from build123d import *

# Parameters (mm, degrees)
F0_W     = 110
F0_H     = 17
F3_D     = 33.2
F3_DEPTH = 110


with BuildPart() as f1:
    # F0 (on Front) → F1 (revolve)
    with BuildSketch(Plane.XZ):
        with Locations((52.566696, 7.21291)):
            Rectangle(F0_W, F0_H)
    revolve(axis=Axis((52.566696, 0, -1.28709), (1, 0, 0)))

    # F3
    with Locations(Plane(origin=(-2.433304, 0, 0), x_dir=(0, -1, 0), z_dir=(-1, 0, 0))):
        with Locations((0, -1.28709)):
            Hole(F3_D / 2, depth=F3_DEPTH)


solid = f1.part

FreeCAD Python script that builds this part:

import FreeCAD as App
import Part
import Sketcher
from FreeCAD import Vector
Q = App.Units.Quantity

doc = App.newDocument("Part")
body = doc.addObject("PartDesign::Body", "Body")

# Sketch on XZ plane
sketch1 = body.newObject("Sketcher::SketchObject", "Sketch")
sketch1.AttachmentSupport = (doc.getObject("XZ_Plane"), [""])
sketch1.MapMode = "FlatFace"
sketch1.addGeometry([
    Part.LineSegment(Vector(-2, 16, 0), Vector(-2, -1, 0)),
    Part.LineSegment(Vector(-2, -1, 0), Vector(108, -1, 0)),
    Part.LineSegment(Vector(108, -1, 0), Vector(108, 16, 0)),
    Part.LineSegment(Vector(108, 16, 0), Vector(-2, 16, 0)),
], False)
sketch1.addGeometry(Part.LineSegment(Vector(-2, -1, 0), Vector(108, -1, 0)), True)  # axis
sketch1.addConstraint([
    Sketcher.Constraint("Coincident", 0, 2, 1, 1),
    Sketcher.Constraint("Coincident", 1, 2, 2, 1),
    Sketcher.Constraint("Coincident", 2, 2, 3, 1),
    Sketcher.Constraint("Coincident", 3, 2, 0, 1),
    Sketcher.Constraint("Vertical", 0),
    Sketcher.Constraint("Horizontal", 1),
    Sketcher.Constraint("Vertical", 2),
    Sketcher.Constraint("Horizontal", 3),
    Sketcher.Constraint("Horizontal", 4),
    Sketcher.Constraint("Coincident", 4, 1, 0, 2),
    Sketcher.Constraint("Vertical", 2, 2, 4, 2),
    Sketcher.Constraint("DistanceX", 1, 1, 1, 2, Q("110 mm")),
    Sketcher.Constraint("DistanceY", 0, 2, 0, 1, Q("17 mm")),
    Sketcher.Constraint("DistanceY", 0, 2, -1, 1, Q("1.28709 mm")),
    Sketcher.Constraint("DistanceX", 0, 2, -1, 1, Q("2.433304 mm")),
])
revolution = body.newObject("PartDesign::Revolution", "Revolution")
revolution.Profile = sketch1
revolution.ReferenceAxis = (sketch1, ["Axis0"])
revolution.Angle = 360

# Sketch on YZ plane
sketch2 = body.newObject("Sketcher::SketchObject", "Sketch001")
sketch2.AttachmentSupport = (doc.getObject("YZ_Plane"), [""])
sketch2.MapMode = "FlatFace"
sketch2.AttachmentOffset = App.Placement(Vector(0, 0, -2.433304), App.Rotation())
sketch2.addGeometry(Part.Circle(Vector(0, -1, 0), Vector(0, 0, 1), 17), False)
sketch2.addConstraint([
    Sketcher.Constraint("PointOnObject", 0, 3, -2),
    Sketcher.Constraint("Diameter", 0, Q("33.2 mm")),
    Sketcher.Constraint("DistanceY", 0, 3, -1, 1, Q("1.28709 mm")),
])
doc.recompute()
hole = body.newObject("PartDesign::Hole", "Hole")
hole.Profile = sketch2
hole.ThreadType = "None"
hole.Diameter = 33.2
hole.DepthType = "Dimension"
hole.Depth = 110
hole.DrillPoint = "Flat"
hole.Reversed = True

doc.recompute()
